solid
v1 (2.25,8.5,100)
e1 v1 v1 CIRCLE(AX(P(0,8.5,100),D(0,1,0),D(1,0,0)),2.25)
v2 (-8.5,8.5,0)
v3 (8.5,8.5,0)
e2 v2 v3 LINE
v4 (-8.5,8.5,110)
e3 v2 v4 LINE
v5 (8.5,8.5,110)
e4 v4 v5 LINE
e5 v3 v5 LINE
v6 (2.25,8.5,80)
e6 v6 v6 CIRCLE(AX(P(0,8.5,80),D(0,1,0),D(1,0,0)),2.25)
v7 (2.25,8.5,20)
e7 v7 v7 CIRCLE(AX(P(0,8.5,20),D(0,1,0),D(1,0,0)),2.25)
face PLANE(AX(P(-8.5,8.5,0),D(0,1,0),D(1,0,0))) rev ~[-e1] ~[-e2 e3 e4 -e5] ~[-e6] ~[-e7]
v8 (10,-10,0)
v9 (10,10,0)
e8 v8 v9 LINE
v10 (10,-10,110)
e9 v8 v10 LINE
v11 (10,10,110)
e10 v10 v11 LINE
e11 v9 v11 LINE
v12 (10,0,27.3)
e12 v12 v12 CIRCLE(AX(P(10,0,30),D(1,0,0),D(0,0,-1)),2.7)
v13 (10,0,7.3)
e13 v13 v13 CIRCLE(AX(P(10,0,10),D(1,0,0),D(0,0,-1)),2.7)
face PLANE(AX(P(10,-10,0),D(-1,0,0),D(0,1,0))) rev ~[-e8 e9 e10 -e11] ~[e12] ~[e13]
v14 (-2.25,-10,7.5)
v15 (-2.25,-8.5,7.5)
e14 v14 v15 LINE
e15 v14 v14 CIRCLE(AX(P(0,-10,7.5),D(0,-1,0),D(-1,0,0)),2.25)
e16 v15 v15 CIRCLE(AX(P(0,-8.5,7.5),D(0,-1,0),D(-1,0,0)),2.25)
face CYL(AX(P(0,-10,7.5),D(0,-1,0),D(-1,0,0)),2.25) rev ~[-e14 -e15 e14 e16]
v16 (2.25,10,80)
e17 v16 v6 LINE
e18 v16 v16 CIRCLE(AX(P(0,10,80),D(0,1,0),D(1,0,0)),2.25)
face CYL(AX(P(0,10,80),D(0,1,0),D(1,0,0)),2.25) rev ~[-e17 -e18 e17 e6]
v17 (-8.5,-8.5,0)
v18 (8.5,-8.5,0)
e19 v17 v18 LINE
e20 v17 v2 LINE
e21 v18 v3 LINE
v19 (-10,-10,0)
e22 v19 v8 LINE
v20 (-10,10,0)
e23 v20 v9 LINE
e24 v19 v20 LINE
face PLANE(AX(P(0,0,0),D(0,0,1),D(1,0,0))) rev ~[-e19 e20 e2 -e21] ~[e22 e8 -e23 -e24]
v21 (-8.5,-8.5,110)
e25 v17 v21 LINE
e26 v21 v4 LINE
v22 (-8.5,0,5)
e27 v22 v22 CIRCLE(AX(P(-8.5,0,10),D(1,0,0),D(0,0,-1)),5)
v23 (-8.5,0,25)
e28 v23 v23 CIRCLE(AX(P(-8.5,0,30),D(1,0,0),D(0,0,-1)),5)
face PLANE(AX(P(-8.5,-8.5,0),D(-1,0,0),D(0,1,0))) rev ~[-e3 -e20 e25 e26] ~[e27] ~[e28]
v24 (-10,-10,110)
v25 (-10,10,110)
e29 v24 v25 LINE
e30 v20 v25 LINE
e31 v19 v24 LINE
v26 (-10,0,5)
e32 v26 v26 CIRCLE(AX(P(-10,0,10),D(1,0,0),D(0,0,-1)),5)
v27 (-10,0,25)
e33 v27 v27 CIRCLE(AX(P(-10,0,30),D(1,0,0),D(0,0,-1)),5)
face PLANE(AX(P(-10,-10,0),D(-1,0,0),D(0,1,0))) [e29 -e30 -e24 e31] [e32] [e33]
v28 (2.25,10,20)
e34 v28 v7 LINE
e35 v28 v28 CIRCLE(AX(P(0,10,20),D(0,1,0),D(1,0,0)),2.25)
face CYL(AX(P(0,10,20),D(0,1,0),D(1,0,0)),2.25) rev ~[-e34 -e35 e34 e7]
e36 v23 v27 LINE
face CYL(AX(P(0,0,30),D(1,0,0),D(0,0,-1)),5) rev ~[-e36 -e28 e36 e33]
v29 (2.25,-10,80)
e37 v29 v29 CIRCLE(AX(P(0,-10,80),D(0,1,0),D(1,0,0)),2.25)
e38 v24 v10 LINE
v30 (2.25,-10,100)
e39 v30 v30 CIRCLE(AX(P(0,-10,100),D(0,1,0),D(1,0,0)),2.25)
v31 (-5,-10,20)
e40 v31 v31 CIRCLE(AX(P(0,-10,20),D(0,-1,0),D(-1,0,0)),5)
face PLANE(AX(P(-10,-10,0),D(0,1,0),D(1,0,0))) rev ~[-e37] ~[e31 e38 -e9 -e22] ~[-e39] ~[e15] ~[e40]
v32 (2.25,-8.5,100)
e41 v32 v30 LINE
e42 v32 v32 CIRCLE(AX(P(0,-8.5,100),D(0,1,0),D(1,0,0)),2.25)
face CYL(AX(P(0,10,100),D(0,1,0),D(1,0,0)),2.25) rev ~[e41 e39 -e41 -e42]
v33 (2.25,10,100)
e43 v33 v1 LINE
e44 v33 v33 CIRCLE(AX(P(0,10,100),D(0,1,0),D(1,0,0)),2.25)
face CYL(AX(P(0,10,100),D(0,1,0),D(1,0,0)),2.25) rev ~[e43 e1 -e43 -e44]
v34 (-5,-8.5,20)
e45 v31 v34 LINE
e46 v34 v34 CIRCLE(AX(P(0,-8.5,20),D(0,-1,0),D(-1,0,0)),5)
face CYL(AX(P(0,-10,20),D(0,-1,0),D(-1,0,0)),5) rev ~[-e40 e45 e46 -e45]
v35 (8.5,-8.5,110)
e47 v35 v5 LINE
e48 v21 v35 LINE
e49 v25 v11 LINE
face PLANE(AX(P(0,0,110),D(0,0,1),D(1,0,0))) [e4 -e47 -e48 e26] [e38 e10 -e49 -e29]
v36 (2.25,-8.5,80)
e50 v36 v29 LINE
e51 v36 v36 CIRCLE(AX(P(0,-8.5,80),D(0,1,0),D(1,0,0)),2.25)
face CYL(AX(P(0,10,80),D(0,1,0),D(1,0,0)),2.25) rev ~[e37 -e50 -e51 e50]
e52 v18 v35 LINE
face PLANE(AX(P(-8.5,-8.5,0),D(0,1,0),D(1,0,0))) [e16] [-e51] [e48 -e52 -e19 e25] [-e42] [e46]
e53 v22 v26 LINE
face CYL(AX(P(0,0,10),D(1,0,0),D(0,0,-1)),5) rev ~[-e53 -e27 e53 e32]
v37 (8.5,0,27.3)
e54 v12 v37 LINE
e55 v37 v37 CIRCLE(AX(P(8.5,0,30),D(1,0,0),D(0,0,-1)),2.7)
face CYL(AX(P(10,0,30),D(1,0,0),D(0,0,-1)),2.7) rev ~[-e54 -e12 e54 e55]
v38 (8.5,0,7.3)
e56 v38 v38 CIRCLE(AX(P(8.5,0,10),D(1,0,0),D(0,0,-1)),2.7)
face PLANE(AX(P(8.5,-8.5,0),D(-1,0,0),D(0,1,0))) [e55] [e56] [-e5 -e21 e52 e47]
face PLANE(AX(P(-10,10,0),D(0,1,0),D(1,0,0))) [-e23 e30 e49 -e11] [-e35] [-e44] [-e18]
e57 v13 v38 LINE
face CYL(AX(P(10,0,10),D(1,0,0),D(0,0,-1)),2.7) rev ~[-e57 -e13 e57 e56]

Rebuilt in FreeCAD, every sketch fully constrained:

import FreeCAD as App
import Part
import Sketcher
from FreeCAD import Vector
Q = App.Units.Quantity


def add_polygon(sketch, points):
    """Adds a closed chain of lines whose ends are joined by coincident constraints."""
    first, n = sketch.GeometryCount, len(points)
    for a, b in zip(points, points[1:] + points[:1]):
        sketch.addGeometry(Part.LineSegment(App.Vector(*a, 0), App.Vector(*b, 0)), False)
    for i in range(n):
        sketch.addConstraint(Sketcher.Constraint("Coincident", first + i, 2, first + (i + 1) % n, 1))

doc = App.newDocument("Part")
body = doc.addObject("PartDesign::Body", "Body")

sketch1 = body.newObject("Sketcher::SketchObject", "Sketch")
sketch1.AttachmentSupport = (doc.getObject("XY_Plane"), [""])
sketch1.MapMode = "FlatFace"
add_polygon(sketch1, [(-10, 10), (-10, -10), (10, -10), (10, 10)])
add_polygon(sketch1, [(8, -8), (-8, -8), (-8, 8), (8, 8)])
sketch1.addConstraint([
    Sketcher.Constraint("Vertical", 0),
    Sketcher.Constraint("Horizontal", 1),
    Sketcher.Constraint("Vertical", 2),
    Sketcher.Constraint("Horizontal", 3),
    Sketcher.Constraint("Horizontal", 4),
    Sketcher.Constraint("Vertical", 5),
    Sketcher.Constraint("Horizontal", 6),
    Sketcher.Constraint("Vertical", 7),
    Sketcher.Constraint("Symmetric", 0, 2, 2, 2, -1, 1),
    Sketcher.Constraint("Symmetric", 4, 2, 6, 2, -1, 1),
    Sketcher.Constraint("Equal", 3, 0),
    Sketcher.Constraint("Equal", 6, 5),
    Sketcher.Constraint("DistanceX", 1, 1, 1, 2, Q("20 mm")),
    Sketcher.Constraint("DistanceX", 4, 2, 4, 1, Q("17 mm")),
])
pad1 = body.newObject("PartDesign::Pad", "Pad")
pad1.Profile = sketch1
pad1.Length = 110

sketch2 = body.newObject("Sketcher::SketchObject", "Sketch001")
sketch2.AttachmentSupport = (doc.getObject("YZ_Plane"), [""])
sketch2.MapMode = "FlatFace"
sketch2.AttachmentOffset = App.Placement(Vector(0, 0, 10), App.Rotation())
sketch2.addGeometry([
    Part.Circle(Vector(0, 30, 0), Vector(0, 0, 1), 2.7),
    Part.Circle(Vector(0, 10, 0), Vector(0, 0, 1), 2.7),
], False)
sketch2.addConstraint([
    Sketcher.Constraint("Equal", 0, 1),
    Sketcher.Constraint("PointOnObject", 0, 3, -2),
    Sketcher.Constraint("PointOnObject", 1, 3, -2),
    Sketcher.Constraint("Diameter", 0, Q("5.4 mm")),
    Sketcher.Constraint("DistanceY", -1, 1, 0, 3, Q("30 mm")),
    Sketcher.Constraint("DistanceY", -1, 1, 1, 3, Q("10 mm")),
])
pocket1 = body.newObject("PartDesign::Pocket", "Pocket")
pocket1.Profile = sketch2
pocket1.Length = 25

sketch3 = body.newObject("Sketcher::SketchObject", "Sketch002")
sketch3.AttachmentSupport = (doc.getObject("XZ_Plane"), [""])
sketch3.MapMode = "FlatFace"
sketch3.AttachmentOffset = App.Placement(Vector(0, 0, -10), App.Rotation())
sketch3.addGeometry([
    Part.Circle(Vector(0, 100, 0), Vector(0, 0, 1), 2.2),
    Part.Circle(Vector(0, 80, 0), Vector(0, 0, 1), 2.2),
    Part.Circle(Vector(0, 20, 0), Vector(0, 0, 1), 2.2),
], False)
sketch3.addConstraint([
    Sketcher.Constraint("Equal", 0, 1),
    Sketcher.Constraint("Equal", 1, 2),
    Sketcher.Constraint("PointOnObject", 0, 3, -2),
    Sketcher.Constraint("PointOnObject", 1, 3, -2),
    Sketcher.Constraint("PointOnObject", 2, 3, -2),
    Sketcher.Constraint("Diameter", 0, Q("4.5 mm")),
    Sketcher.Constraint("DistanceY", -1, 1, 0, 3, Q("100 mm")),
    Sketcher.Constraint("DistanceY", -1, 1, 1, 3, Q("80 mm")),
    Sketcher.Constraint("DistanceY", -1, 1, 2, 3, Q("20 mm")),
])
pocket2 = body.newObject("PartDesign::Pocket", "Pocket001")
pocket2.Profile = sketch3
pocket2.Length = 20
pocket2.Reversed = True

sketch4 = body.newObject("Sketcher::SketchObject", "Sketch003")
sketch4.AttachmentSupport = (doc.getObject("XZ_Plane"), [""])
sketch4.MapMode = "FlatFace"
sketch4.AttachmentOffset = App.Placement(Vector(0, 0, 10), App.Rotation())
sketch4.addGeometry(Part.Circle(Vector(0, 7.5, 0), Vector(0, 0, 1), 2.2), False)
sketch4.addConstraint([
    Sketcher.Constraint("PointOnObject", 0, 3, -2),
    Sketcher.Constraint("Diameter", 0, Q("4.5 mm")),
    Sketcher.Constraint("DistanceY", -1, 1, 0, 3, Q("7.5 mm")),
])
pocket3 = body.newObject("PartDesign::Pocket", "Pocket002")
pocket3.Profile = sketch4
pocket3.Length = 5

sketch5 = body.newObject("Sketcher::SketchObject", "Sketch004")
sketch5.AttachmentSupport = (doc.getObject("XZ_Plane"), [""])
sketch5.MapMode = "FlatFace"
sketch5.AttachmentOffset = App.Placement(Vector(0, 0, 10), App.Rotation())
sketch5.addGeometry(Part.Circle(Vector(0, 20, 0), Vector(0, 0, 1), 5), False)
sketch5.addConstraint([
    Sketcher.Constraint("PointOnObject", 0, 3, -2),
    Sketcher.Constraint("Diameter", 0, Q("10 mm")),
    Sketcher.Constraint("DistanceY", -1, 1, 0, 3, Q("20 mm")),
])
pocket4 = body.newObject("PartDesign::Pocket", "Pocket003")
pocket4.Profile = sketch5
pocket4.Length = 10

sketch6 = body.newObject("Sketcher::SketchObject", "Sketch005")
sketch6.AttachmentSupport = (doc.getObject("YZ_Plane"), [""])
sketch6.MapMode = "FlatFace"
sketch6.addGeometry([
    Part.Circle(Vector(0, 10, 0), Vector(0, 0, 1), 5),
    Part.Circle(Vector(0, 30, 0), Vector(0, 0, 1), 5),
], False)
sketch6.addConstraint([
    Sketcher.Constraint("Equal", 0, 1),
    Sketcher.Constraint("PointOnObject", 0, 3, -2),
    Sketcher.Constraint("PointOnObject", 1, 3, -2),
    Sketcher.Constraint("Diameter", 0, Q("10 mm")),
    Sketcher.Constraint("DistanceY", -1, 1, 0, 3, Q("10 mm")),
    Sketcher.Constraint("DistanceY", -1, 1, 1, 3, Q("30 mm")),
])
pocket5 = body.newObject("PartDesign::Pocket", "Pocket004")
pocket5.Profile = sketch6
pocket5.Length = 10

doc.recompute()
